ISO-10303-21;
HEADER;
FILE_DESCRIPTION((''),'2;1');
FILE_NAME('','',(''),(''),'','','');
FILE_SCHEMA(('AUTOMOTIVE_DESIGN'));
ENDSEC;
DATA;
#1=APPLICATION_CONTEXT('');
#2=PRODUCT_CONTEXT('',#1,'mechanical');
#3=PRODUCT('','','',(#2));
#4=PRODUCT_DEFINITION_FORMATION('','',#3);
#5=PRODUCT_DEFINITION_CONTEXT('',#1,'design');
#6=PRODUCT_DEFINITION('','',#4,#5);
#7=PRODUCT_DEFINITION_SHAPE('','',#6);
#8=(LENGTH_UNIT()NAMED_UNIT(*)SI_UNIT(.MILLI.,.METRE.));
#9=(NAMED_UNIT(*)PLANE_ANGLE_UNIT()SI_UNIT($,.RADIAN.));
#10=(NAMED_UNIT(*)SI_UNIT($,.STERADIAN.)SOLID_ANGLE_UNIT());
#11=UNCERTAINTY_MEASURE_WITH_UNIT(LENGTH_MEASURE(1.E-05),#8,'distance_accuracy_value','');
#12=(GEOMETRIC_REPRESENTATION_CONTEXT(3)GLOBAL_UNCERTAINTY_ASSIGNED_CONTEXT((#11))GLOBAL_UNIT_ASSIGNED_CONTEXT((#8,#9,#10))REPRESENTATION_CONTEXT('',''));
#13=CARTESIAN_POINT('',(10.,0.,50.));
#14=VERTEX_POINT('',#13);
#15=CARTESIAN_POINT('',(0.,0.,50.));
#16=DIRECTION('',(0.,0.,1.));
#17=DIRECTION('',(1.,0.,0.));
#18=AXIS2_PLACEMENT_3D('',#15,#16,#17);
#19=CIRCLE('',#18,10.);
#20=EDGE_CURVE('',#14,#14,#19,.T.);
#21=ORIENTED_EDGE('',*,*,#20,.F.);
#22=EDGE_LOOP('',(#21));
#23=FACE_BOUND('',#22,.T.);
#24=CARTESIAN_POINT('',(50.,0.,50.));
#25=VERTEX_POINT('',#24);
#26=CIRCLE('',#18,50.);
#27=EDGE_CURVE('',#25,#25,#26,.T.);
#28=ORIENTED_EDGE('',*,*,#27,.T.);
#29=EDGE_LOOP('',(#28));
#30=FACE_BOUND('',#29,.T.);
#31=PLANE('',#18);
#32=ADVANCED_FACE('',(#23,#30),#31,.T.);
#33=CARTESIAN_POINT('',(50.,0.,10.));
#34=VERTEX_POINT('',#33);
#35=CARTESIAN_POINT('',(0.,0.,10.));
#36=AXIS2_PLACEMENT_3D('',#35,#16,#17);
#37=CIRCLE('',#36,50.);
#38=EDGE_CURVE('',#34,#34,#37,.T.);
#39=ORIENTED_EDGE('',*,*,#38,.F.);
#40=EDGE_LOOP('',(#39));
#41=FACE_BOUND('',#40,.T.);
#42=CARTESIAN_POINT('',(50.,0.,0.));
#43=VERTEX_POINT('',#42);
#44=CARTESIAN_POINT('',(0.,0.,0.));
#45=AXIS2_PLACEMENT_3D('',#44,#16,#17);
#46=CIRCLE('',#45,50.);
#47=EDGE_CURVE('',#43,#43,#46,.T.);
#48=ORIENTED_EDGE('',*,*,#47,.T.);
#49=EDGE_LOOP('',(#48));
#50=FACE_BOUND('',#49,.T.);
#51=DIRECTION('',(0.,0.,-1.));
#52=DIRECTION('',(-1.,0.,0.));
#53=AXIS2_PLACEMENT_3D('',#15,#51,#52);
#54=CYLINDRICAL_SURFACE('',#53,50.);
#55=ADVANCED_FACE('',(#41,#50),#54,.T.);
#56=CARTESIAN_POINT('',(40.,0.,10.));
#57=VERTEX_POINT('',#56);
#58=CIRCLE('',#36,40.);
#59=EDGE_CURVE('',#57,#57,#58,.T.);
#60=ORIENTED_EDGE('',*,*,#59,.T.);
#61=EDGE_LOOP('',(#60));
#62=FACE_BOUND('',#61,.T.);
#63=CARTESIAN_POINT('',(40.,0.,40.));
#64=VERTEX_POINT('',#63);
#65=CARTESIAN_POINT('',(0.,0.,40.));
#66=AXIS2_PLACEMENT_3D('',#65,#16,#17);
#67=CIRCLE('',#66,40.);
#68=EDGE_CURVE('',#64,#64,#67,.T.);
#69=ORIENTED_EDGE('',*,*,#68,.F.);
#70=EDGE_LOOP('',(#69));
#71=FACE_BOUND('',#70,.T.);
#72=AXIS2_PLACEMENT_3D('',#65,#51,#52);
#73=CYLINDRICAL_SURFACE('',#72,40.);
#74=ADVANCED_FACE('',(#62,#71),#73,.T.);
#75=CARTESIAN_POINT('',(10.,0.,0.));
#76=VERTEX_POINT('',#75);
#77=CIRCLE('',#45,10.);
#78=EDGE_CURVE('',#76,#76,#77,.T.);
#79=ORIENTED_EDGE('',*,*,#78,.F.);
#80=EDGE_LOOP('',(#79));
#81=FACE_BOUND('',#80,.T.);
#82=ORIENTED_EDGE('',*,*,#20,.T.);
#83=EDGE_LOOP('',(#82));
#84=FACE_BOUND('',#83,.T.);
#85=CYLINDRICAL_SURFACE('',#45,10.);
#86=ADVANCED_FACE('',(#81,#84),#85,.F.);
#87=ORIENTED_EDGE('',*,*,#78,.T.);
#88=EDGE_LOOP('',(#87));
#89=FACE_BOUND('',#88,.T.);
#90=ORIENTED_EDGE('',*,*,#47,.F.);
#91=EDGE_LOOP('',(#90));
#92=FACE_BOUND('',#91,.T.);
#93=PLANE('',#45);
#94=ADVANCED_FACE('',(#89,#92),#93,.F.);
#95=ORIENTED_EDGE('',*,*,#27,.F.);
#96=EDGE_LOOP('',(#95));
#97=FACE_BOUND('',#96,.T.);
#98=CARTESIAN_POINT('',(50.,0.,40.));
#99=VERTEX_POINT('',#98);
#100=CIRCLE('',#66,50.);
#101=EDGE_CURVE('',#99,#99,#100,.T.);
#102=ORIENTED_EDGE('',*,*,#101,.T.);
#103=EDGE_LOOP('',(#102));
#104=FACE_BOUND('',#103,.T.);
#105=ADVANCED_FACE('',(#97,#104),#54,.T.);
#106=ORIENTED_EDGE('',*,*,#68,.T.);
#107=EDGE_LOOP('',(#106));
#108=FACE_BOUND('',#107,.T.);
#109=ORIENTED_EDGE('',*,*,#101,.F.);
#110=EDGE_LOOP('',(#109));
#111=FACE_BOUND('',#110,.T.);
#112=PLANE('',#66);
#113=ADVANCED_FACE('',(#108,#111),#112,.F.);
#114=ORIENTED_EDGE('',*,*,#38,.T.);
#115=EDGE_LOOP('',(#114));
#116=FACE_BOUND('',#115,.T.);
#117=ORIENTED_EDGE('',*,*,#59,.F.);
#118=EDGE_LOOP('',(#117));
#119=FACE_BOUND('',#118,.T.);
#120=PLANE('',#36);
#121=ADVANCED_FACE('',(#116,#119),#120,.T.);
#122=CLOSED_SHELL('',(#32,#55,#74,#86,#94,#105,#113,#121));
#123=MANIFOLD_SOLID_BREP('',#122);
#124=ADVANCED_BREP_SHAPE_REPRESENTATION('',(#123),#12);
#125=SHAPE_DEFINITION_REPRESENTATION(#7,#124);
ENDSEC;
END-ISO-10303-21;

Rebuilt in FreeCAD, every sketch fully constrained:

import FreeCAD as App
import Part
import Sketcher


def add_polygon(sketch, points):
    """Adds a closed chain of lines whose ends are joined by coincident constraints."""
    first, n = sketch.GeometryCount, len(points)
    for a, b in zip(points, points[1:] + points[:1]):
        sketch.addGeometry(Part.LineSegment(App.Vector(*a, 0), App.Vector(*b, 0)), False)
    for i in range(n):
        sketch.addConstraint(Sketcher.Constraint("Coincident", first + i, 2, first + (i + 1) % n, 1))

doc = App.newDocument("Part")
body = doc.addObject("PartDesign::Body", "Body")

sketch1 = body.newObject("Sketcher::SketchObject", "Sketch")
sketch1.AttachmentSupport = (doc.getObject("XY_Plane"), [""])
sketch1.MapMode = "FlatFace"
sketch1.addGeometry(Part.Circle(App.Vector(0, 0, 0), App.Vector(0, 0, 1), 50), False)
sketch1.addConstraint(Sketcher.Constraint("Coincident", 0, 3, -1, 1))
sketch1.addConstraint(Sketcher.Constraint("Diameter", 0, 100.0))
pad1 = body.newObject("PartDesign::Pad", "Pad")
pad1.Profile = sketch1
pad1.Length = 50

sketch2 = body.newObject("Sketcher::SketchObject", "Sketch001")
sketch2.AttachmentSupport = (doc.getObject("XY_Plane"), [""])
sketch2.MapMode = "FlatFace"
sketch2.AttachmentOffset = App.Placement(App.Vector(0, 0, 25), App.Rotation())
add_polygon(sketch2, [(-66, 66), (-66, -66), (66, -66), (66, 66)])
sketch2.addGeometry(Part.Circle(App.Vector(0, 0, 0), App.Vector(0, 0, 1), 40), False)
sketch2.addConstraint(Sketcher.Constraint("Vertical", 0))
sketch2.addConstraint(Sketcher.Constraint("Horizontal", 1))
sketch2.addConstraint(Sketcher.Constraint("Vertical", 2))
sketch2.addConstraint(Sketcher.Constraint("Horizontal", 3))
sketch2.addConstraint(Sketcher.Constraint("Coincident", 4, 3, -1, 1))
sketch2.addConstraint(Sketcher.Constraint("Symmetric", 0, 2, 2, 2, -1, 1))
sketch2.addConstraint(Sketcher.Constraint("Equal", 3, 0))
sketch2.addConstraint(Sketcher.Constraint("Diameter", 4, 80.0))
sketch2.addConstraint(Sketcher.Constraint("DistanceX", 1, 1, 1, 2, 132.0))
pocket1 = body.newObject("PartDesign::Pocket", "Pocket")
pocket1.Profile = sketch2
pocket1.Type = "TwoLengths"
pocket1.Length = 15
pocket1.Length2 = 15
pocket1.Reversed = True

sketch3 = body.newObject("Sketcher::SketchObject", "Sketch002")
sketch3.AttachmentSupport = (doc.getObject("XY_Plane"), [""])
sketch3.MapMode = "FlatFace"
sketch3.AttachmentOffset = App.Placement(App.Vector(0, 0, 25), App.Rotation())
sketch3.addGeometry(Part.Circle(App.Vector(0, 0, 0), App.Vector(0, 0, 1), 10), False)
sketch3.addConstraint(Sketcher.Constraint("Coincident", 0, 3, -1, 1))
sketch3.addConstraint(Sketcher.Constraint("Diameter", 0, 20.0))
pocket2 = body.newObject("PartDesign::Pocket", "Pocket001")
pocket2.Profile = sketch3
pocket2.Type = "ThroughAll"
pocket2.Midplane = True

doc.recompute()
